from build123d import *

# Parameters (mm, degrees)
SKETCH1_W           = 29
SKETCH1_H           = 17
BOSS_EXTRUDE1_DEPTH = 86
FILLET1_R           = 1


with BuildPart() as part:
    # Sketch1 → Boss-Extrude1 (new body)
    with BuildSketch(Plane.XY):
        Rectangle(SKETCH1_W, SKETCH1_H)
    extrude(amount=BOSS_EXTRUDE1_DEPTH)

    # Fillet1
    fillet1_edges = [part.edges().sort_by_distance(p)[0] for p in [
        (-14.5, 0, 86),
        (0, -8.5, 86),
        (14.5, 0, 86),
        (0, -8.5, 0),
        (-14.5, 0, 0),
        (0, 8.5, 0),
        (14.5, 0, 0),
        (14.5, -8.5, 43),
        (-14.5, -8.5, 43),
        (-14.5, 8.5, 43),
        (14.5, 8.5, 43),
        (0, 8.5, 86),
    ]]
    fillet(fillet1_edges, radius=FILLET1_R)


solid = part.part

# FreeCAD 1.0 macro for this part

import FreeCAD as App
import Part
import Sketcher
Q = App.Units.Quantity

doc = App.newDocument("Part")
body = doc.addObject("PartDesign::Body", "Body")

# Sketch on XY plane
sketch1 = body.newObject("Sketcher::SketchObject", "Sketch")
sketch1.AttachmentSupport = (doc.getObject("XY_Plane"), [""])
sketch1.MapMode = "FlatFace"
sketch1.addGeometry([
    Part.LineSegment(App.Vector(-14.5, 8.5, 0), App.Vector(-14.5, -8.5, 0)),
    Part.LineSegment(App.Vector(-14.5, -8.5, 0), App.Vector(14.5, -8.5, 0)),
    Part.LineSegment(App.Vector(14.5, -8.5, 0), App.Vector(14.5, 8.5, 0)),
    Part.LineSegment(App.Vector(14.5, 8.5, 0), App.Vector(-14.5, 8.5, 0)),
], False)
sketch1.addConstraint([
    Sketcher.Constraint("Coincident", 0, 2, 1, 1),
    Sketcher.Constraint("Coincident", 1, 2, 2, 1),
    Sketcher.Constraint("Coincident", 2, 2, 3, 1),
    Sketcher.Constraint("Coincident", 3, 2, 0, 1),
    Sketcher.Constraint("Vertical", 0),
    Sketcher.Constraint("Horizontal", 1),
    Sketcher.Constraint("Vertical", 2),
    Sketcher.Constraint("Horizontal", 3),
    Sketcher.Constraint("Symmetric", 0, 2, 2, 2, -1, 1),
    Sketcher.Constraint("DistanceX", 1, 1, 1, 2, Q("29 mm")),
    Sketcher.Constraint("DistanceY", 0, 2, 0, 1, Q("17 mm")),
])
pad1 = body.newObject("PartDesign::Pad", "Pad")
pad1.Profile = sketch1
pad1.Length = 86
doc.recompute()

fillet = body.newObject("PartDesign::Fillet", "Fillet")
fillet.Base = (pad1, ["Edge1"])
fillet.UseAllEdges = True
fillet.Radius = 1

doc.recompute()
